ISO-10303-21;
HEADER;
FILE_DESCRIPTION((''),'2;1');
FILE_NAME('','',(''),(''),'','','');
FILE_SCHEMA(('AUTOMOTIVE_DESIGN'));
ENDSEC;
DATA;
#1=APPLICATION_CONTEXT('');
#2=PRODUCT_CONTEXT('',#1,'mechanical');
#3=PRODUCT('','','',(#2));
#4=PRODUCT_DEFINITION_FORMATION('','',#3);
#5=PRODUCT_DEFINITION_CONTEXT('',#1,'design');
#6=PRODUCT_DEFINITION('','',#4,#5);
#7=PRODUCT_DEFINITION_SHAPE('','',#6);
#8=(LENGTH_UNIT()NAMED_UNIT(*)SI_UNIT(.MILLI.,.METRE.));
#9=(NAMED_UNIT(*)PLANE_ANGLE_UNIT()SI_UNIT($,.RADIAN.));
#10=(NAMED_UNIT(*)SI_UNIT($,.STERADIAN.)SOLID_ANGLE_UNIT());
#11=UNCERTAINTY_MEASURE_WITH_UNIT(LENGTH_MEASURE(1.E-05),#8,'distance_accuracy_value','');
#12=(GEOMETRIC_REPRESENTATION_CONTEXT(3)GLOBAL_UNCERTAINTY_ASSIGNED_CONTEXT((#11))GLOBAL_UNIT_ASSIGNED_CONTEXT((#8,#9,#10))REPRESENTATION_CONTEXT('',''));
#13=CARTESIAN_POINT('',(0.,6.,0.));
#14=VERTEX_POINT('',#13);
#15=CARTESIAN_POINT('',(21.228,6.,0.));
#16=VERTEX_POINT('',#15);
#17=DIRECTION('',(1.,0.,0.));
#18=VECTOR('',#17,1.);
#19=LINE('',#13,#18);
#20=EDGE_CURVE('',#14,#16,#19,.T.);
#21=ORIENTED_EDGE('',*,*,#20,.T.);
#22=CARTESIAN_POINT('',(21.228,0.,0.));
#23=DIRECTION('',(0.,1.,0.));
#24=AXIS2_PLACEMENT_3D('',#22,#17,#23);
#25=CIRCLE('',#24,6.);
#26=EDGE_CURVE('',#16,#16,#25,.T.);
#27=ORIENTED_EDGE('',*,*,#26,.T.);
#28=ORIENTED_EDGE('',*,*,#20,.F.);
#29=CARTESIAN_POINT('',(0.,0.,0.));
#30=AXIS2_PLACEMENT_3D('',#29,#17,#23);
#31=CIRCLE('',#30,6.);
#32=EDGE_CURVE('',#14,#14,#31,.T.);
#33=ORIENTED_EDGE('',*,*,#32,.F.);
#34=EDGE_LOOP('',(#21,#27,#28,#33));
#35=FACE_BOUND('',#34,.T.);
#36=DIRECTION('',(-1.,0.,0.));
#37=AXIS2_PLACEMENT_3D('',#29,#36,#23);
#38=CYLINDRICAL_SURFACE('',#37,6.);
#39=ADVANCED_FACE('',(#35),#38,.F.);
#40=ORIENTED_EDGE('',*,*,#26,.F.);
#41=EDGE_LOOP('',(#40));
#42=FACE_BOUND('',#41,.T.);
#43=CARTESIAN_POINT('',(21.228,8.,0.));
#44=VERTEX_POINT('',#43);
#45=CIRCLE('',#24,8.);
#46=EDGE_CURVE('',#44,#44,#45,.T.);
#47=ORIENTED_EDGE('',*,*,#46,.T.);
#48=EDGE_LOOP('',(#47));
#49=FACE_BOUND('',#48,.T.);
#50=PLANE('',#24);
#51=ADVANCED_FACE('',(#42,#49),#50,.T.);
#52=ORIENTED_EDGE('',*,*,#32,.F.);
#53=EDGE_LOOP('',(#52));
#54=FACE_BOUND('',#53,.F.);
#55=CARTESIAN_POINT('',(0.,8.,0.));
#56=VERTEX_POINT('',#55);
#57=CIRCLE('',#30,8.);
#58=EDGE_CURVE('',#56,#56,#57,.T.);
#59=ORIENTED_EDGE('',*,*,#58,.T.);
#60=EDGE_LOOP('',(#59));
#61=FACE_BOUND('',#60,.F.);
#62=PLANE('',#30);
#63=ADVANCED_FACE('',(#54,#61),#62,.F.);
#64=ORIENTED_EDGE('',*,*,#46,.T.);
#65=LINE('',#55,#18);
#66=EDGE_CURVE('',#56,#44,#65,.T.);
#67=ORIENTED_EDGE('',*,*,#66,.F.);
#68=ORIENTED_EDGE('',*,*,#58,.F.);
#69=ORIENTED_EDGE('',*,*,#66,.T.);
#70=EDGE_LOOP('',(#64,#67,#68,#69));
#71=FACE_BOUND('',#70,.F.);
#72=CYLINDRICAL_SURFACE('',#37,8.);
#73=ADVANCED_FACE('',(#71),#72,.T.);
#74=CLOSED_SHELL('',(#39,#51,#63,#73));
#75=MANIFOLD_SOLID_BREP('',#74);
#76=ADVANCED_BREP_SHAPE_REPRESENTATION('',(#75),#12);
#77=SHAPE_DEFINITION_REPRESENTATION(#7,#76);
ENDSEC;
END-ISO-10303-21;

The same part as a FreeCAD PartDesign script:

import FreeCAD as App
import Part
import Sketcher

V = App.Vector
Q = App.Units.Quantity

doc = App.newDocument("Part")
body = doc.addObject("PartDesign::Body", "Body")

# Sketch on YZ plane
sketch1 = body.newObject("Sketcher::SketchObject", "Sketch")
sketch1.AttachmentSupport = (doc.getObject("YZ_Plane"), [""])
sketch1.MapMode = "FlatFace"
sketch1.addGeometry([
    Part.Circle(V(0, 0, 0), V(0, 0, 1), 8),
    Part.Circle(V(0, 0, 0), V(0, 0, 1), 6),
], False)
sketch1.addConstraint([
    Sketcher.Constraint("Coincident", 0, 3, -1, 1),
    Sketcher.Constraint("Coincident", 1, 3, -1, 1),
    Sketcher.Constraint("Diameter", 0, Q("16 mm")),
    Sketcher.Constraint("Diameter", 1, Q("12 mm")),
])
pad1 = body.newObject("PartDesign::Pad", "Pad")
pad1.Profile = sketch1
pad1.Length = 21.228

doc.recompute()
